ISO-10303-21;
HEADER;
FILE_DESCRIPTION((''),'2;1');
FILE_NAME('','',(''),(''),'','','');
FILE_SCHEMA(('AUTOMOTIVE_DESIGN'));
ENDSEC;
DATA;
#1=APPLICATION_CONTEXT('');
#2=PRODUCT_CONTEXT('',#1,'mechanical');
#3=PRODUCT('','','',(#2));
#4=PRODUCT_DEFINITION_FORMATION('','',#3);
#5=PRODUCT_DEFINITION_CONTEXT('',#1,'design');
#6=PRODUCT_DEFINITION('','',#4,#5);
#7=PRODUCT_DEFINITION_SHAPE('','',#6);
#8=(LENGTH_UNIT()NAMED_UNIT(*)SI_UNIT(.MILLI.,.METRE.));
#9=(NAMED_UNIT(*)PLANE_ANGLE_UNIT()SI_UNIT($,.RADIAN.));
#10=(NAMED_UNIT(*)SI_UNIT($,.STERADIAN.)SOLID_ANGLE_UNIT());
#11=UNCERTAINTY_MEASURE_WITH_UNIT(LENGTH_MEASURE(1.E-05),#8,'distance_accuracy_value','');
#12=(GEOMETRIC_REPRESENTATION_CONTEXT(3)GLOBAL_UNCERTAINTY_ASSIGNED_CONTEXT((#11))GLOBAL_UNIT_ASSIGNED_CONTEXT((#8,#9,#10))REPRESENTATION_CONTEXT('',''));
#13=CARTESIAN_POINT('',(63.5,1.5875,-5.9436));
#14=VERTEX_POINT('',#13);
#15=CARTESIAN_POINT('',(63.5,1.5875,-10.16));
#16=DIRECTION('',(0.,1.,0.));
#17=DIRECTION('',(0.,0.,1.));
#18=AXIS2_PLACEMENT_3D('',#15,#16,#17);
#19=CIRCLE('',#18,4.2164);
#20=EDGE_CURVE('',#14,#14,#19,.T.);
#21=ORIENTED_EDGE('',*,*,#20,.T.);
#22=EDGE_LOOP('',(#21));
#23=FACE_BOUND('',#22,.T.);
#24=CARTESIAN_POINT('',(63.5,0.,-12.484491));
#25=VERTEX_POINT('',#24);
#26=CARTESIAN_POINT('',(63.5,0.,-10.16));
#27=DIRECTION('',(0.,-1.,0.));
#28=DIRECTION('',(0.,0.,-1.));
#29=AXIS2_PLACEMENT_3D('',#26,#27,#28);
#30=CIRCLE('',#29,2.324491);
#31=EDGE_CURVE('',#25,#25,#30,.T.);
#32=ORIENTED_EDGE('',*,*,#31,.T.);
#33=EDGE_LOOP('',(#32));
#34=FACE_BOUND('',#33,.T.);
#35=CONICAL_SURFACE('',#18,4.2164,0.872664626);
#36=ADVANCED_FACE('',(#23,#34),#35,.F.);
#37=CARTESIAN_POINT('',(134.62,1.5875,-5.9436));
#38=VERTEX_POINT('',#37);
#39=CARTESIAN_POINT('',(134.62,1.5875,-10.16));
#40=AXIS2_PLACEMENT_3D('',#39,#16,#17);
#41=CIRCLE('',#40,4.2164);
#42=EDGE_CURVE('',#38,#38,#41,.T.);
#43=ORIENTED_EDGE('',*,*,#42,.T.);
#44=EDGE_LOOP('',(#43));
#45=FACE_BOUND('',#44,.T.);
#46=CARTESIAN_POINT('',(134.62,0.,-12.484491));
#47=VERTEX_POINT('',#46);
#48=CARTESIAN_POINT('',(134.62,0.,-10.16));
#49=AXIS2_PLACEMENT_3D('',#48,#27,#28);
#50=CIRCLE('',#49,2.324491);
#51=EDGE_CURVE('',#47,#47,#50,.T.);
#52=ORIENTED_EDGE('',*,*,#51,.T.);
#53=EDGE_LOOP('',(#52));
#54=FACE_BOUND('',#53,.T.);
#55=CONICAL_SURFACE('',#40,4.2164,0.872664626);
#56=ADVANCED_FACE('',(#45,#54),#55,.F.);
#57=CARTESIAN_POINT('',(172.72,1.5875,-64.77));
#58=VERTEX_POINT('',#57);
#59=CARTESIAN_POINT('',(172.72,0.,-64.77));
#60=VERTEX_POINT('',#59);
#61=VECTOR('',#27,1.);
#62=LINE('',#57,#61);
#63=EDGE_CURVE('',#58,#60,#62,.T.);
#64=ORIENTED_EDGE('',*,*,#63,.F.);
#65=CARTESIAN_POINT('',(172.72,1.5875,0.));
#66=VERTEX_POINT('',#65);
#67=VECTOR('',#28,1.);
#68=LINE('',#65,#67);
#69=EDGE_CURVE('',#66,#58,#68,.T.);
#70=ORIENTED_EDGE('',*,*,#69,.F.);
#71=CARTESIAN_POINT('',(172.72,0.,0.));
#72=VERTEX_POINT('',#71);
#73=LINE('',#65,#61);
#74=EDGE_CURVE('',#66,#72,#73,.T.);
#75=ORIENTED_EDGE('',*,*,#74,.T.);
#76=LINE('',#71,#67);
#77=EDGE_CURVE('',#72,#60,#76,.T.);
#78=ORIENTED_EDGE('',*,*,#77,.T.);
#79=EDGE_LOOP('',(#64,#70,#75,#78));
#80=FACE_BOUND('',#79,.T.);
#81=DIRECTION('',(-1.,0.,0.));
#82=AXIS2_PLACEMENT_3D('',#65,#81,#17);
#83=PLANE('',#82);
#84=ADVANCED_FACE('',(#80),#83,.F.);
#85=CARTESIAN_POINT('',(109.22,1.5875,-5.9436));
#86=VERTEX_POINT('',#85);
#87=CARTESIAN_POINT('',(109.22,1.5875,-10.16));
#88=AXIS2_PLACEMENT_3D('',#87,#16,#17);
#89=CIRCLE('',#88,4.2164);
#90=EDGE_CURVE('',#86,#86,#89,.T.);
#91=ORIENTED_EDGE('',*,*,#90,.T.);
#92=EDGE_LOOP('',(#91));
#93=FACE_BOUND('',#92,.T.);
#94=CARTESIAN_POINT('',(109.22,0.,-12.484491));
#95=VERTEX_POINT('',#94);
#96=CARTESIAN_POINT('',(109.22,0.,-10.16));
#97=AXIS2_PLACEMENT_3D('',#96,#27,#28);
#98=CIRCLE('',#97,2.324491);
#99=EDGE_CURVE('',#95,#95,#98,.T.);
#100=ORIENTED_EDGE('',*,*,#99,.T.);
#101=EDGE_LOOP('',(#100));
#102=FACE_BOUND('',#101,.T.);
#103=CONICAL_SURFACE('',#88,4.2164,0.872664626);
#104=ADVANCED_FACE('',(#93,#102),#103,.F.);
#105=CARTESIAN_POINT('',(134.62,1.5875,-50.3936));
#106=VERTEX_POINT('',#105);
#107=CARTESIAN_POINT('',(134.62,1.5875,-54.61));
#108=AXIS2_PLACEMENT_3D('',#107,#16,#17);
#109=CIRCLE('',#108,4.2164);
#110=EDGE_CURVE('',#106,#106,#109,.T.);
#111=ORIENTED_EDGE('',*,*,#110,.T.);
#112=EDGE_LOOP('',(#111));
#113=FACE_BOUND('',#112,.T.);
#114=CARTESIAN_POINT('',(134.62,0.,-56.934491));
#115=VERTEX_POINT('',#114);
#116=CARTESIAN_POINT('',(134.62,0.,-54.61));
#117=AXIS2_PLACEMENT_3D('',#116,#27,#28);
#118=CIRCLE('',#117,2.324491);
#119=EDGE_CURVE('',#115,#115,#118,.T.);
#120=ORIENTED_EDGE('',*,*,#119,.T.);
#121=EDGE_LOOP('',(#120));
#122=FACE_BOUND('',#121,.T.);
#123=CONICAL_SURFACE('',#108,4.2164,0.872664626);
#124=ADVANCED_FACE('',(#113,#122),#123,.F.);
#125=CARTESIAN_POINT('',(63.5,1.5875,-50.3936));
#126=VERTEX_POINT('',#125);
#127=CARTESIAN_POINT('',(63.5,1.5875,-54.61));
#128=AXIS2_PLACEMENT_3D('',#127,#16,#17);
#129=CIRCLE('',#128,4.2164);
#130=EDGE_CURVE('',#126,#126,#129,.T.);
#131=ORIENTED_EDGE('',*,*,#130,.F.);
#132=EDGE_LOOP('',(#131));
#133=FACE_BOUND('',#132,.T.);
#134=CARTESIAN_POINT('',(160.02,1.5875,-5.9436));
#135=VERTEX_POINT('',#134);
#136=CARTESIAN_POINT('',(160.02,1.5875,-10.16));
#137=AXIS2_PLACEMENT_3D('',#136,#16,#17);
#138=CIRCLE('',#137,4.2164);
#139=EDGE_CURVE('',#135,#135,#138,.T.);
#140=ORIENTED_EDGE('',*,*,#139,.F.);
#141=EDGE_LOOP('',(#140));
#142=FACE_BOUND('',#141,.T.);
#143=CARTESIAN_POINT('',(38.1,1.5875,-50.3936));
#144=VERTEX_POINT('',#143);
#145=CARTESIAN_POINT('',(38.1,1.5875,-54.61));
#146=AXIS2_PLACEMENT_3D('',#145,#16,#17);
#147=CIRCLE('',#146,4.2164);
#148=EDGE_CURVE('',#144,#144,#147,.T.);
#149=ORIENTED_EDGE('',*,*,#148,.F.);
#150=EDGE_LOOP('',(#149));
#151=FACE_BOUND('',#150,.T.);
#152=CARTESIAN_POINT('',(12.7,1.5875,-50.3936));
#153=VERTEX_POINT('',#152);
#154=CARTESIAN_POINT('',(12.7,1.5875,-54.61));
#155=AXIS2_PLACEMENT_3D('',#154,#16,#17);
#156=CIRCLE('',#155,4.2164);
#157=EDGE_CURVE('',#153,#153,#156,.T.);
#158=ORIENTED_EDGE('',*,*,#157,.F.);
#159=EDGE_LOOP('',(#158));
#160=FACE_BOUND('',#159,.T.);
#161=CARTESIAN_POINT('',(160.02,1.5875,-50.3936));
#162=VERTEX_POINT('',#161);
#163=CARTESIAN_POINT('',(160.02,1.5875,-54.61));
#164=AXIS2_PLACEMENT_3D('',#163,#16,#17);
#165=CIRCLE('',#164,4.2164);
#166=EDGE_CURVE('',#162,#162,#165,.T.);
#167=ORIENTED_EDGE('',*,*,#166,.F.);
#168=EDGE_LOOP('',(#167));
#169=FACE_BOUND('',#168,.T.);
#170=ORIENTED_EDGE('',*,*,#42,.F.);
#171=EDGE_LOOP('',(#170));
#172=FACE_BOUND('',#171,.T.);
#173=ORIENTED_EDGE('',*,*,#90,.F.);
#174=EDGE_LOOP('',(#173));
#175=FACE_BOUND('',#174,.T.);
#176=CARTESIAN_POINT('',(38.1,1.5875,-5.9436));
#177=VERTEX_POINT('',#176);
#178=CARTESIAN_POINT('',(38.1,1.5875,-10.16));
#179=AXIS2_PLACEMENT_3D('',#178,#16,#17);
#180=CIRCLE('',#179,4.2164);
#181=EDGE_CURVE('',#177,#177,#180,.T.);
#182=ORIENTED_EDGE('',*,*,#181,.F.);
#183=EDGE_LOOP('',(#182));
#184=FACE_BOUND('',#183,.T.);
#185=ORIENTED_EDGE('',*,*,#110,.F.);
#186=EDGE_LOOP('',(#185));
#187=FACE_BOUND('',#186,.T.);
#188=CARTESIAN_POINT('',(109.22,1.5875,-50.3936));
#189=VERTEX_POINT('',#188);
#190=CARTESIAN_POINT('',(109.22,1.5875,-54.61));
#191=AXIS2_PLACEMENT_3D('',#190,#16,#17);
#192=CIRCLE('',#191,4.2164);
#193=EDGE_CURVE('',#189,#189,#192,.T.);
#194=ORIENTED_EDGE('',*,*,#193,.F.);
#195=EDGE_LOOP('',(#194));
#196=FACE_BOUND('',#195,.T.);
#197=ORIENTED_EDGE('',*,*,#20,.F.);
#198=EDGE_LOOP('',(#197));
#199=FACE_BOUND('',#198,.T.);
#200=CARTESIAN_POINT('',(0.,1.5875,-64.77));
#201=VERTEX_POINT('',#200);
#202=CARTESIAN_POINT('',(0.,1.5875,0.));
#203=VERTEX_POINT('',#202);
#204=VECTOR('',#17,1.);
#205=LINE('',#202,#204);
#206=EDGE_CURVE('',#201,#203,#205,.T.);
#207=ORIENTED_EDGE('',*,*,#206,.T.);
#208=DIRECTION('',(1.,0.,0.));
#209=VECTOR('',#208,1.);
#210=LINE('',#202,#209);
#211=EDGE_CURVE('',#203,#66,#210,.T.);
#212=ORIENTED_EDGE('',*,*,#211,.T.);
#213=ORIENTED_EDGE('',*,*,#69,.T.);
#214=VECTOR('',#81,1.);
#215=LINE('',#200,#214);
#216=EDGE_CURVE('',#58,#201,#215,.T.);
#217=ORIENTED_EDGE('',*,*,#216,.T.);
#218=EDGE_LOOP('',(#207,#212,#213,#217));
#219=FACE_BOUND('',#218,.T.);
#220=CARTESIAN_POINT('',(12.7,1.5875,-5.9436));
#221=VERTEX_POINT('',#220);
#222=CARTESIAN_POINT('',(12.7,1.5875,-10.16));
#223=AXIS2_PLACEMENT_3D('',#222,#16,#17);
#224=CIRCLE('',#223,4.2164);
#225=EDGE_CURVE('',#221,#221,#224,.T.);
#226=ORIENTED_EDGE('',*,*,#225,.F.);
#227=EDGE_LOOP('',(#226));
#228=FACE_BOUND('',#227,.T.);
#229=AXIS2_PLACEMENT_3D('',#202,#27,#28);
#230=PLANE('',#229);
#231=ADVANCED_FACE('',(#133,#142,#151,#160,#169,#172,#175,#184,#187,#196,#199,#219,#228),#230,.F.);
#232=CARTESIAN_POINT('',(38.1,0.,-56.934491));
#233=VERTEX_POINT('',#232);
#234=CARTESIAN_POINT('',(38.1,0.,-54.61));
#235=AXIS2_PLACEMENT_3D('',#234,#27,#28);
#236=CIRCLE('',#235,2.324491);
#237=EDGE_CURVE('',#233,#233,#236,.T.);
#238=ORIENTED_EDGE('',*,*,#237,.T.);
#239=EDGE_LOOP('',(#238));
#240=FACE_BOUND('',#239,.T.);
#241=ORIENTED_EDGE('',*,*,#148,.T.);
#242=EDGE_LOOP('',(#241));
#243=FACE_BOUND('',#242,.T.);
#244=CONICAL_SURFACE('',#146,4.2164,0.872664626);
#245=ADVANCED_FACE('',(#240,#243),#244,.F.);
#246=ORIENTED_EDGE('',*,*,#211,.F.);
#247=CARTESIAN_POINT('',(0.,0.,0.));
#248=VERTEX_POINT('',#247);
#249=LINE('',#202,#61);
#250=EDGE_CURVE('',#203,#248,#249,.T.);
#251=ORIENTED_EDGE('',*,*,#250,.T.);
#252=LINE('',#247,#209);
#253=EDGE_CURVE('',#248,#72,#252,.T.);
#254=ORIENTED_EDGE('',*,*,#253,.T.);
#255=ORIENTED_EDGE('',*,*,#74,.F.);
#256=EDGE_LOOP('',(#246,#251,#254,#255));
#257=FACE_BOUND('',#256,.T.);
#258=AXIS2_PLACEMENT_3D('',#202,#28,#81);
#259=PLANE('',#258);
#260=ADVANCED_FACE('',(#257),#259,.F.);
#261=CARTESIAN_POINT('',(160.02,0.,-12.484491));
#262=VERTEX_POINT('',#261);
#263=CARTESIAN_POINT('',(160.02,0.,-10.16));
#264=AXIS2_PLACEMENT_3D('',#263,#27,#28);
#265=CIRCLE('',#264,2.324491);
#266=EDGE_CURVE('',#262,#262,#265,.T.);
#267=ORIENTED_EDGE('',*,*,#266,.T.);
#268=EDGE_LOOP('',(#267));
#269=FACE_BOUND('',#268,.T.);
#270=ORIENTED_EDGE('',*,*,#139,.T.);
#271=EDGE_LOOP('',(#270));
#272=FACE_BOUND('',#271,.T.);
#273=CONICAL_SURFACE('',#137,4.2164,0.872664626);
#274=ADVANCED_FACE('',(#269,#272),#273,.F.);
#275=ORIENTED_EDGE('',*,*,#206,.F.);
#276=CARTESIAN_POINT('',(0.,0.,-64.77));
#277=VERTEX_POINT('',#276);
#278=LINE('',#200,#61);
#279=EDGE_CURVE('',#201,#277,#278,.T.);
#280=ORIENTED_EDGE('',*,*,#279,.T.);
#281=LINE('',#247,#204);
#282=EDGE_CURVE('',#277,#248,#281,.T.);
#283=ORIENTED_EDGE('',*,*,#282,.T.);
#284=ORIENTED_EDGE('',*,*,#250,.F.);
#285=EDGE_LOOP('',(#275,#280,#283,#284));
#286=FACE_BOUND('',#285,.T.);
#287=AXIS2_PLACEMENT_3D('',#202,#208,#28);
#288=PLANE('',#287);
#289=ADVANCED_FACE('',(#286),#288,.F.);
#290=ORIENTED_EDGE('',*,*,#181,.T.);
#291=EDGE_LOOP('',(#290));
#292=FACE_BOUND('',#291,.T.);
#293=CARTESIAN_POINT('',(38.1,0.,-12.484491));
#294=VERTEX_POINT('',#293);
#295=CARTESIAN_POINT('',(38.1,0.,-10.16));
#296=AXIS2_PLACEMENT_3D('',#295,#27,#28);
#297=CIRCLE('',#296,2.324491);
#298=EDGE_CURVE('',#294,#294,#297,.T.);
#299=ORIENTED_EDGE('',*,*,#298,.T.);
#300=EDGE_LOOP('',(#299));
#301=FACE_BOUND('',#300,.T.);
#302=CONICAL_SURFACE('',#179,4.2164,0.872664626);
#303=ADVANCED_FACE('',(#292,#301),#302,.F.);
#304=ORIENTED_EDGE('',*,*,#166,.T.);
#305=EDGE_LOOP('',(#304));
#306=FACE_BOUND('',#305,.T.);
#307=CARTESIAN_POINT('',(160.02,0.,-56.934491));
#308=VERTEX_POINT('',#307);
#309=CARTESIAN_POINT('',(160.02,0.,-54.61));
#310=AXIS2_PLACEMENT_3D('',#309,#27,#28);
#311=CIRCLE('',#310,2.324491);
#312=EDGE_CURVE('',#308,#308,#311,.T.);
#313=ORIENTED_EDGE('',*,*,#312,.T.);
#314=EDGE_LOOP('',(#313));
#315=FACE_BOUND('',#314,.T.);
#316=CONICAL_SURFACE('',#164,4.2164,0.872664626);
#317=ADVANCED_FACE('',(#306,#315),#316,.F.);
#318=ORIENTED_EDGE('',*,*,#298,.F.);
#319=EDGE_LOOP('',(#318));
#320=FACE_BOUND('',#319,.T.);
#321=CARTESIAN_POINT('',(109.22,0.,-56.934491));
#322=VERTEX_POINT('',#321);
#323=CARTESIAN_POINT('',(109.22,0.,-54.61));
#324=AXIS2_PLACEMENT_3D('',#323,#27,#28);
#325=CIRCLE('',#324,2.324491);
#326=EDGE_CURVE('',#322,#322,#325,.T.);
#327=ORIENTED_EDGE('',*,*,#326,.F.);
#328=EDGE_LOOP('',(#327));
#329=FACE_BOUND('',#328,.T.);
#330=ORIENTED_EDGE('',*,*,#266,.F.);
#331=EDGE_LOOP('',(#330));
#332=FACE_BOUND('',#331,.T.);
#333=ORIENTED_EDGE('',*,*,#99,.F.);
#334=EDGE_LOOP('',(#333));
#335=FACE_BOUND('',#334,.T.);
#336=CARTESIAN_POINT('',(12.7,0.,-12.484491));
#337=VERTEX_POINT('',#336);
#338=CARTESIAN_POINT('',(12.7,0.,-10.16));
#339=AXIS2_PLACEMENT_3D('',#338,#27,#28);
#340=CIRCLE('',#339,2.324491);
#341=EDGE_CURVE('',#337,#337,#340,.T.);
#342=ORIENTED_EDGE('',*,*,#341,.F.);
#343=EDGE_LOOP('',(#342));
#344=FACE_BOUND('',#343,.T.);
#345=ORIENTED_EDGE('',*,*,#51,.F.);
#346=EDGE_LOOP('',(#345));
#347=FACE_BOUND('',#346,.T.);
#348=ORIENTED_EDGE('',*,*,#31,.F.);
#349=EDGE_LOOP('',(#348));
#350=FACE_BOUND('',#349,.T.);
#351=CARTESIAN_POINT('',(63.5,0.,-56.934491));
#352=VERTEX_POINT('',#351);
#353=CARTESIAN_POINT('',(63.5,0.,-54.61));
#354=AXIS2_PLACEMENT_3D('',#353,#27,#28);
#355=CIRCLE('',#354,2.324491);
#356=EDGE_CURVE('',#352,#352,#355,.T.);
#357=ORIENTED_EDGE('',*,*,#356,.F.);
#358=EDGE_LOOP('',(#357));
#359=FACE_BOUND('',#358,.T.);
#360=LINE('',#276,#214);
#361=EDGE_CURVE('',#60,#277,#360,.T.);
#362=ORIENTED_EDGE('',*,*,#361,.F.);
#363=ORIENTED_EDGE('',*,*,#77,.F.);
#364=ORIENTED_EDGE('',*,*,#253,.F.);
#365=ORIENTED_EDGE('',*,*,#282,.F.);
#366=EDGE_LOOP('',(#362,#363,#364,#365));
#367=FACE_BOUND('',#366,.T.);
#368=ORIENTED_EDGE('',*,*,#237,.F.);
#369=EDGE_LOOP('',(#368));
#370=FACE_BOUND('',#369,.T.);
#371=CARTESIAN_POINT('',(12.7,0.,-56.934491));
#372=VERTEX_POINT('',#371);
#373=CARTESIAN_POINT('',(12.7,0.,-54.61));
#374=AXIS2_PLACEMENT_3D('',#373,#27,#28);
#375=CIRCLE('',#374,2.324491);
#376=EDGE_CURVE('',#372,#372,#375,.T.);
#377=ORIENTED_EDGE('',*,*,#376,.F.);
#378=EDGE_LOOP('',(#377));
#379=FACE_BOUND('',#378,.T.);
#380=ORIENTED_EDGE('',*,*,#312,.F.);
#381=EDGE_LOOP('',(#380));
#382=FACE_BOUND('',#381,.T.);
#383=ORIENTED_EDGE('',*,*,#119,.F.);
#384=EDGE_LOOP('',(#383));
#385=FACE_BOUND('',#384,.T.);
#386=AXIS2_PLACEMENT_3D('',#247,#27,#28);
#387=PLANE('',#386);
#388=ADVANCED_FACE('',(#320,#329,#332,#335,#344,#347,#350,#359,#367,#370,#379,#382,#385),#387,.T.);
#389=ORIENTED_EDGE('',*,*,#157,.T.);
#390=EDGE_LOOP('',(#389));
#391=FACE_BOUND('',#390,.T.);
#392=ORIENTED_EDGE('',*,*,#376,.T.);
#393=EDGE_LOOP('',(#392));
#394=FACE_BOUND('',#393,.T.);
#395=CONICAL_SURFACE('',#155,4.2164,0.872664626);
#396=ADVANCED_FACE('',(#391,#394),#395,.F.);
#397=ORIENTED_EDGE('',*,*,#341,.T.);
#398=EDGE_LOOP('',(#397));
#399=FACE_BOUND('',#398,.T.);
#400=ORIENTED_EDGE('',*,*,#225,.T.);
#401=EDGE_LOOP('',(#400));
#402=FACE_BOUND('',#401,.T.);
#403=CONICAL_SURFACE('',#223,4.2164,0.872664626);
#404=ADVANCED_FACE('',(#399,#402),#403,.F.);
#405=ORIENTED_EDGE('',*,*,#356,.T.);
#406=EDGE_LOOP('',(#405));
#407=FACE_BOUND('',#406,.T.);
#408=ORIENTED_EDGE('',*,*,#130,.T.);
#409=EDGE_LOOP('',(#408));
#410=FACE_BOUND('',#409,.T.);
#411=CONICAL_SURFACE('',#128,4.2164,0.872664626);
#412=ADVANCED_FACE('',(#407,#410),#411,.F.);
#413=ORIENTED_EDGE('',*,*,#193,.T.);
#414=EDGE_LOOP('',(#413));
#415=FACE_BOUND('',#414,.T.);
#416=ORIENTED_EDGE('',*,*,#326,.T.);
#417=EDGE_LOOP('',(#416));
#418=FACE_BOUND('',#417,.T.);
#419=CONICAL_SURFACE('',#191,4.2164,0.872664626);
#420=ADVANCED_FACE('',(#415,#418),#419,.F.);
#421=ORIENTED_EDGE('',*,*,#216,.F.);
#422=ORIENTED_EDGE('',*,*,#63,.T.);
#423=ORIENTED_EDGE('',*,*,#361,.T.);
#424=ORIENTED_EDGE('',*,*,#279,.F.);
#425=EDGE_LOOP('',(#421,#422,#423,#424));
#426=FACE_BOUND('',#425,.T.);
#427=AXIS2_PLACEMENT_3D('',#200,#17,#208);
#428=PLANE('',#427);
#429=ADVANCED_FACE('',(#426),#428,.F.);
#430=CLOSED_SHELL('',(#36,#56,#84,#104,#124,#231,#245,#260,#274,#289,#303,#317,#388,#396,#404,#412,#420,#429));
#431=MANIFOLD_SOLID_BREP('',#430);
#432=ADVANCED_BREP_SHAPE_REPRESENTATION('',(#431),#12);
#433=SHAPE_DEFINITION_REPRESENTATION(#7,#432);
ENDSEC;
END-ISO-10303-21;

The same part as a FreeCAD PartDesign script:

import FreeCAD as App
import Part
import Sketcher
Q = App.Units.Quantity


def add_polygon(sketch, points):
    """Adds a closed chain of lines whose ends are joined by coincident constraints."""
    first, n = sketch.GeometryCount, len(points)
    for a, b in zip(points, points[1:] + points[:1]):
        sketch.addGeometry(Part.LineSegment(App.Vector(*a, 0), App.Vector(*b, 0)), False)
    for i in range(n):
        sketch.addConstraint(Sketcher.Constraint("Coincident", first + i, 2, first + (i + 1) % n, 1))

doc = App.newDocument("Part")
body = doc.addObject("PartDesign::Body", "Body")

sketch1 = body.newObject("Sketcher::SketchObject", "Sketch")
sketch1.AttachmentSupport = (doc.getObject("XZ_Plane"), [""])
sketch1.MapMode = "FlatFace"
add_polygon(sketch1, [(0, -65), (0, 0), (173, 0), (173, -65)])
sketch1.addConstraint([
    Sketcher.Constraint("Vertical", 0),
    Sketcher.Constraint("Horizontal", 1),
    Sketcher.Constraint("Vertical", 2),
    Sketcher.Constraint("Horizontal", 3),
    Sketcher.Constraint("Coincident", 0, 2, -1, 1),
    Sketcher.Constraint("DistanceX", 1, 1, 1, 2, Q("6.8 in")),
    Sketcher.Constraint("DistanceY", 0, 1, 0, 2, Q("2.55 in")),
])
pad1 = body.newObject("PartDesign::Pad", "Pad")
pad1.Profile = sketch1
pad1.Length = Q("0.0625 in")
pad1.Reversed = True

sketch2 = body.newObject("Sketcher::SketchObject", "Sketch001")
sketch2.AttachmentSupport = (doc.getObject("XZ_Plane"), [""])
sketch2.MapMode = "FlatFace"
sketch2.AttachmentOffset = App.Placement(App.Vector(0, 0, -0.0625 * 25.4), App.Rotation())
sketch2.addGeometry([
    Part.Circle(App.Vector(12.7, -54.6, 0), App.Vector(0, 0, 1), 2.2),
    Part.Circle(App.Vector(38.1, -54.6, 0), App.Vector(0, 0, 1), 2.2),
    Part.Circle(App.Vector(63.5, -54.6, 0), App.Vector(0, 0, 1), 2.2),
    Part.Circle(App.Vector(109.2, -54.6, 0), App.Vector(0, 0, 1), 2.2),
    Part.Circle(App.Vector(134.6, -54.6, 0), App.Vector(0, 0, 1), 2.2),
    Part.Circle(App.Vector(160, -54.6, 0), App.Vector(0, 0, 1), 2.2),
    Part.Circle(App.Vector(160, -10.2, 0), App.Vector(0, 0, 1), 2.2),
    Part.Circle(App.Vector(134.6, -10.2, 0), App.Vector(0, 0, 1), 2.2),
    Part.Circle(App.Vector(109.2, -10.2, 0), App.Vector(0, 0, 1), 2.2),
    Part.Circle(App.Vector(63.5, -10.2, 0), App.Vector(0, 0, 1), 2.2),
    Part.Circle(App.Vector(38.1, -10.2, 0), App.Vector(0, 0, 1), 2.2),
    Part.Circle(App.Vector(12.7, -10.2, 0), App.Vector(0, 0, 1), 2.2),
], False)
sketch2.addConstraint([
    Sketcher.Constraint("Equal", 0, 1),
    Sketcher.Constraint("Equal", 1, 2),
    Sketcher.Constraint("Equal", 2, 3),
    Sketcher.Constraint("Equal", 3, 4),
    Sketcher.Constraint("Equal", 4, 5),
    Sketcher.Constraint("Equal", 5, 6),
    Sketcher.Constraint("Equal", 6, 7),
    Sketcher.Constraint("Equal", 7, 8),
    Sketcher.Constraint("Equal", 8, 9),
    Sketcher.Constraint("Equal", 9, 10),
    Sketcher.Constraint("Equal", 10, 11),
    Sketcher.Constraint("Horizontal", 0, 3, 1, 3),
    Sketcher.Constraint("Horizontal", 1, 3, 2, 3),
    Sketcher.Constraint("Horizontal", 2, 3, 3, 3),
    Sketcher.Constraint("Horizontal", 3, 3, 4, 3),
    Sketcher.Constraint("Horizontal", 4, 3, 5, 3),
    Sketcher.Constraint("Horizontal", 6, 3, 7, 3),
    Sketcher.Constraint("Horizontal", 7, 3, 8, 3),
    Sketcher.Constraint("Horizontal", 8, 3, 9, 3),
    Sketcher.Constraint("Horizontal", 9, 3, 10, 3),
    Sketcher.Constraint("Horizontal", 10, 3, 11, 3),
    Sketcher.Constraint("Vertical", 5, 3, 6, 3),
    Sketcher.Constraint("Vertical", 4, 3, 7, 3),
    Sketcher.Constraint("Vertical", 3, 3, 8, 3),
    Sketcher.Constraint("Vertical", 2, 3, 9, 3),
    Sketcher.Constraint("Vertical", 1, 3, 10, 3),
    Sketcher.Constraint("Vertical", 0, 3, 11, 3),
    Sketcher.Constraint("Diameter", 0, Q("0.177 in")),
    Sketcher.Constraint("DistanceX", 0, 3, 1, 3, Q("1 in")),
    Sketcher.Constraint("DistanceX", 1, 3, 2, 3, Q("1 in")),
    Sketcher.Constraint("DistanceX", 3, 3, 4, 3, Q("1 in")),
    Sketcher.Constraint("DistanceX", 4, 3, 5, 3, Q("1 in")),
    Sketcher.Constraint("DistanceX", -1, 1, 0, 3, Q("0.5 in")),
    Sketcher.Constraint("DistanceX", -1, 1, 3, 3, Q("4.3 in")),
    Sketcher.Constraint("DistanceY", 6, 3, -1, 1, Q("0.4 in")),
    Sketcher.Constraint("DistanceY", 0, 3, -1, 1, Q("2.15 in")),
])
doc.recompute()
hole = body.newObject("PartDesign::Hole", "Hole")
hole.Profile = sketch2
hole.ThreadType = "None"
hole.Diameter = Q("0.177 in")
hole.DepthType = "Dimension"
hole.Depth = Q("0.5 in")
hole.DrillPoint = "Angled"
hole.DrillPointAngle = 118
hole.HoleCutType = "Countersink"
hole.HoleCutDiameter = Q("0.332 in")
hole.HoleCutCountersinkAngle = 100
hole.Reversed = True

doc.recompute()
